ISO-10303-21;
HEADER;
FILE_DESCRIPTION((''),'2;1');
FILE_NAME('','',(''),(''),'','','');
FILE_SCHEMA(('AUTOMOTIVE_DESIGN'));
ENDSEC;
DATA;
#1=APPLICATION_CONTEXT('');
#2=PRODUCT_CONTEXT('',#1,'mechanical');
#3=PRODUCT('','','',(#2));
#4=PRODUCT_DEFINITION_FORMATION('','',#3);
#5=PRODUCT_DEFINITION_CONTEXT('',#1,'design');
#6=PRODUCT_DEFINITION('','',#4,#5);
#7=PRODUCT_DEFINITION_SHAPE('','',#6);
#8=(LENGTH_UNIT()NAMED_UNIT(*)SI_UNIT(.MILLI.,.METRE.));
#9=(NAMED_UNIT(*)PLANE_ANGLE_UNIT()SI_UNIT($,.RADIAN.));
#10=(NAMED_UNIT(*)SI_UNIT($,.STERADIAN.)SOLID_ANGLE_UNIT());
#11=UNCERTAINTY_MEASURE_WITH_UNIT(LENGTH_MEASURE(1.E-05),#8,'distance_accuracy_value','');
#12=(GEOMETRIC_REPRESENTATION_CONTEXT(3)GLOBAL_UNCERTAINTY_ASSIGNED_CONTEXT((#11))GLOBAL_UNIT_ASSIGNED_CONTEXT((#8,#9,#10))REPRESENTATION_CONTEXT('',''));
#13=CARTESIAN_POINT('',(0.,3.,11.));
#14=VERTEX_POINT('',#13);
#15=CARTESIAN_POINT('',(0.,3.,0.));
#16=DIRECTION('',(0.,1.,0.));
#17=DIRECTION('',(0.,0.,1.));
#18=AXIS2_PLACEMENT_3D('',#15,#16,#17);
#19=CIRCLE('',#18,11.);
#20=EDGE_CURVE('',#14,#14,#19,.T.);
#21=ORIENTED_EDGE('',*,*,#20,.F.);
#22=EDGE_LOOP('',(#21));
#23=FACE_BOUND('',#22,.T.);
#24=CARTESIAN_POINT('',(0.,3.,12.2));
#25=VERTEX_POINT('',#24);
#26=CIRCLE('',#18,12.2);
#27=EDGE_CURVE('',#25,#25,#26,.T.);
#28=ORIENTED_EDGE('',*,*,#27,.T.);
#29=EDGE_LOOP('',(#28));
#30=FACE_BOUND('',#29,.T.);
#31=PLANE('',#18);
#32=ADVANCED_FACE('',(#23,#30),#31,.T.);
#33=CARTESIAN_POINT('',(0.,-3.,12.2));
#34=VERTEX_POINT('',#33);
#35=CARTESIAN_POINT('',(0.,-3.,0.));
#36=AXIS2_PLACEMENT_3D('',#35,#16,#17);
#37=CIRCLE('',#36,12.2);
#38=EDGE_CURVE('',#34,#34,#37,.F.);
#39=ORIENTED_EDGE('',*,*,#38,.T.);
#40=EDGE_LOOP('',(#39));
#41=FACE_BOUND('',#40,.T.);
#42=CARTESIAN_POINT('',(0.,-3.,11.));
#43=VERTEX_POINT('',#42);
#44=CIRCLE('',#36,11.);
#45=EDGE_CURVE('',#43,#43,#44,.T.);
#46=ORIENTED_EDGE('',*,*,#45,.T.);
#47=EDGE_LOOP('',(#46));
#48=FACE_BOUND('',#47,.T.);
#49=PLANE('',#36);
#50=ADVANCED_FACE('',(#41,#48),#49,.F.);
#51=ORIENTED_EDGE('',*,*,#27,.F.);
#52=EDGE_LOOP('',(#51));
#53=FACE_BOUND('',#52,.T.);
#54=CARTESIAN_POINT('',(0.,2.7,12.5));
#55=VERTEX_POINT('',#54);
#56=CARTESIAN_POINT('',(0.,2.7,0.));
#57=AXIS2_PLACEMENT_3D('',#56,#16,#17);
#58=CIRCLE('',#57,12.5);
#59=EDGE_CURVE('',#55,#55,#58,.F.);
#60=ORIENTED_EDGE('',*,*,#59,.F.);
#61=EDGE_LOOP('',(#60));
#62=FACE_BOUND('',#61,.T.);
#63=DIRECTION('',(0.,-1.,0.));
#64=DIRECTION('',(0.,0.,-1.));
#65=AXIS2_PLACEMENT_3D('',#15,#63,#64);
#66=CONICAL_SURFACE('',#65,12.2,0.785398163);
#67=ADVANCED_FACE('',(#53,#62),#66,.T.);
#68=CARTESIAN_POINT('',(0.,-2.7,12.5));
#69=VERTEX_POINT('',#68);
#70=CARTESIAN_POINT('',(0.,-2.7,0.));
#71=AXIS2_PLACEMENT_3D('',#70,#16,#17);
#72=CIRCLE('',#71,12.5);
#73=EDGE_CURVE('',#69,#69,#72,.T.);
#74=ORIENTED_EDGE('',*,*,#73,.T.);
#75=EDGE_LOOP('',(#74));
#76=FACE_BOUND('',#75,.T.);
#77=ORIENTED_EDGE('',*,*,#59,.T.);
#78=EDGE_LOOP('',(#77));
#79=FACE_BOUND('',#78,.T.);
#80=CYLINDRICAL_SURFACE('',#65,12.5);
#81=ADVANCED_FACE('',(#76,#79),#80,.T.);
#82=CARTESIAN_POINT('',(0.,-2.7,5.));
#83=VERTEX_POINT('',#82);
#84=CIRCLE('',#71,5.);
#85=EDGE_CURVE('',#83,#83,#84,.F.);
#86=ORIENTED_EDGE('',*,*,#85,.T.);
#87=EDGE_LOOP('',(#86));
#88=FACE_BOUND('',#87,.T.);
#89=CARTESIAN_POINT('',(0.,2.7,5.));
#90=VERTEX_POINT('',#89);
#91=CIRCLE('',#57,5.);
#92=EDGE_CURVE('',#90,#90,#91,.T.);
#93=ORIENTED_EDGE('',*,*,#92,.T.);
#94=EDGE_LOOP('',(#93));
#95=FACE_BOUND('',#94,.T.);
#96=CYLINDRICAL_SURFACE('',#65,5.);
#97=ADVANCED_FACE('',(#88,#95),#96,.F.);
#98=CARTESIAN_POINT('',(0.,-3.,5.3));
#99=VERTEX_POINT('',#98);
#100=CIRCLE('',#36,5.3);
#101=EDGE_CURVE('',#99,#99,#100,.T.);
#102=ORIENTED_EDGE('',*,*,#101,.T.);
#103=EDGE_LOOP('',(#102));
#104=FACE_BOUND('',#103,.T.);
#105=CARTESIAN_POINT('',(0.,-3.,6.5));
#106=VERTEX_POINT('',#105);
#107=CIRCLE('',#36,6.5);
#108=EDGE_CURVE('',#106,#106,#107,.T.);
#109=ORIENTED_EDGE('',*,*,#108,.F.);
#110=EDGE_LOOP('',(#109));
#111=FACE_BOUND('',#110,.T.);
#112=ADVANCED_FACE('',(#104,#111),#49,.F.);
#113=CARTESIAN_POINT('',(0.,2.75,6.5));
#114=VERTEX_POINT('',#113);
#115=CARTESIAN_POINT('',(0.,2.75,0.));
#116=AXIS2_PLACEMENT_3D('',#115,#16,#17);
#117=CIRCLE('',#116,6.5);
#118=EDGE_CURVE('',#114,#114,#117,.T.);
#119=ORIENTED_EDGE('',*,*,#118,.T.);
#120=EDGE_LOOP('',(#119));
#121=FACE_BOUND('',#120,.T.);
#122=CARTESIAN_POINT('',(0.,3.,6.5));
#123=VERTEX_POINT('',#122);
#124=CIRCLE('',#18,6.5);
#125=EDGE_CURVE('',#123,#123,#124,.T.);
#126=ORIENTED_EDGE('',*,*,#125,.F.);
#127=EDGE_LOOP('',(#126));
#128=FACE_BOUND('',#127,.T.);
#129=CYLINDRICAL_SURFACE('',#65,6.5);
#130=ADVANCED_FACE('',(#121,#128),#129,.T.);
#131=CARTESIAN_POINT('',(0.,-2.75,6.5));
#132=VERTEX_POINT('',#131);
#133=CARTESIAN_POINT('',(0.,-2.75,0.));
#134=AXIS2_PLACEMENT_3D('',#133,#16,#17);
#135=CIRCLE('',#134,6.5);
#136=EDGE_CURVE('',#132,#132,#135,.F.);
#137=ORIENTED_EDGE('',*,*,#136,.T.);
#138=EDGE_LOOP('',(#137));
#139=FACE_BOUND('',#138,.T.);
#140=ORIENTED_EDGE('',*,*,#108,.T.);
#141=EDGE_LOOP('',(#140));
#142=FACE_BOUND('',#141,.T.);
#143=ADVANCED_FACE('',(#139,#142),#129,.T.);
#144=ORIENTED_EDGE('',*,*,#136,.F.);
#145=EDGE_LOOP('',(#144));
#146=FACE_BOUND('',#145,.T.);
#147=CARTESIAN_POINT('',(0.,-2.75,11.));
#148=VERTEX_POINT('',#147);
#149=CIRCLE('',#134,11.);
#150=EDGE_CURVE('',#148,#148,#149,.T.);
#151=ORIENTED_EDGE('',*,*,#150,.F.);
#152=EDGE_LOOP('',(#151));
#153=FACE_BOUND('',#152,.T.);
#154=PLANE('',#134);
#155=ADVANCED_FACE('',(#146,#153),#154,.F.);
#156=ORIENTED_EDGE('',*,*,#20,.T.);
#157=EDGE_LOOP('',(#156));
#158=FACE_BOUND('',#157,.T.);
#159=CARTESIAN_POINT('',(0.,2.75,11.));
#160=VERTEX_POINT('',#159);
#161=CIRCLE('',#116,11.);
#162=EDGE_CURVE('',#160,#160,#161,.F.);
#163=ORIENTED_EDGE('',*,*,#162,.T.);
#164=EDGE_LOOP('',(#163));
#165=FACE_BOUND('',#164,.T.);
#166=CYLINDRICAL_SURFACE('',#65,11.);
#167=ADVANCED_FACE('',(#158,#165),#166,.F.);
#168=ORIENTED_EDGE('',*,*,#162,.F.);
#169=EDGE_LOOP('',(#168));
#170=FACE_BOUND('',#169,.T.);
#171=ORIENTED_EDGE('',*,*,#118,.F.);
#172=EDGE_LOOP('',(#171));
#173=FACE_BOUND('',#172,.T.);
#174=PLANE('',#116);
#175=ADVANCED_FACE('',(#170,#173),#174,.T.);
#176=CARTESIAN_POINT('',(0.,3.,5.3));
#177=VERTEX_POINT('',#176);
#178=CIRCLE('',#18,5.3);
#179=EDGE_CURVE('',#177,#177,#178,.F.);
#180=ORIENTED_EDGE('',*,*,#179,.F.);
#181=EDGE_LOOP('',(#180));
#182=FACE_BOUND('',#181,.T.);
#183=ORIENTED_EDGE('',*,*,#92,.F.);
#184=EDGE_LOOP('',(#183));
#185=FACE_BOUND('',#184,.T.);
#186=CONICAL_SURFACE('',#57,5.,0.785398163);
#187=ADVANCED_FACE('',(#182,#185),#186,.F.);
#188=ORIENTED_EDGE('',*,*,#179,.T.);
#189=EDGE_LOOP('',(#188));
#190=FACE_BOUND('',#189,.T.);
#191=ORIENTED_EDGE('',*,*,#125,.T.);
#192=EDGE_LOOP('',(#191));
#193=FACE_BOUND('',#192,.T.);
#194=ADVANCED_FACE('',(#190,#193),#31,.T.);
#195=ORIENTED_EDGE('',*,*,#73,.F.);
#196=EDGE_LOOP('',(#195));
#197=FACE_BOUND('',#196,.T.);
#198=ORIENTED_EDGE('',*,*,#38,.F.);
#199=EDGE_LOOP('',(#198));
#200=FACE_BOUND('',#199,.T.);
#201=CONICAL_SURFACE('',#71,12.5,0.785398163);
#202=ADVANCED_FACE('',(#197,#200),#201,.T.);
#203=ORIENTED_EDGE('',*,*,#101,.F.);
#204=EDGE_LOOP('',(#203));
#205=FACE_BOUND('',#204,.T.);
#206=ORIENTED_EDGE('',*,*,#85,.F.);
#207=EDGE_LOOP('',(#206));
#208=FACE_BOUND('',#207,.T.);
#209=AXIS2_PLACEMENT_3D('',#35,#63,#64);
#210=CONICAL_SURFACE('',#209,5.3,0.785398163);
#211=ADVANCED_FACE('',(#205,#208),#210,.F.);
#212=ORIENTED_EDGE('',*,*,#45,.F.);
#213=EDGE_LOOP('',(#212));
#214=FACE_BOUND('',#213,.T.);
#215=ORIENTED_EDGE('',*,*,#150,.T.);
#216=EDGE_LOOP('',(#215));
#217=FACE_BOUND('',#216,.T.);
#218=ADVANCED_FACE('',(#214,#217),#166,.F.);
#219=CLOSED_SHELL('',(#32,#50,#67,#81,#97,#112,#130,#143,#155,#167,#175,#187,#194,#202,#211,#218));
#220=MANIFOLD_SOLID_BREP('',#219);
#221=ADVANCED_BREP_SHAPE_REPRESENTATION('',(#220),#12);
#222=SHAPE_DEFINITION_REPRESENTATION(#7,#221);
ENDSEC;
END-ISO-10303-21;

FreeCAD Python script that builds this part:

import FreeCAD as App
import Part
import Sketcher


def edges_at(feature, points):
    """Names of the edges that pass closest to the given points."""
    edges = feature.Shape.Edges
    near = lambda p: min(range(len(edges)), key=lambda i: edges[i].distToShape(Part.Vertex(*p))[0])
    return sorted({f"Edge{near(p) + 1}" for p in points})

doc = App.newDocument("Part")
body = doc.addObject("PartDesign::Body", "Body")

# Sketch on XZ plane
sketch1 = doc.addObject("Sketcher::SketchObject", "Sketch")
body.addObject(sketch1)
sketch1.AttachmentSupport = (doc.XZ_Plane, [""])
sketch1.MapMode = "FlatFace"
sketch1.addGeometry(Part.Circle(App.Vector(0, 0, 0), App.Vector(0, 0, 1), 11), False)
sketch1.addGeometry(Part.Circle(App.Vector(0, 0, 0), App.Vector(0, 0, 1), 6.5), False)
sketch1.addConstraint(Sketcher.Constraint("Coincident", 0, 3, -1, 1))
sketch1.addConstraint(Sketcher.Constraint("Coincident", 1, 3, -1, 1))
sketch1.addConstraint(Sketcher.Constraint("Diameter", 0, 22.0))
sketch1.addConstraint(Sketcher.Constraint("Diameter", 1, 13.0))
pad1 = doc.addObject("PartDesign::Pad", "Pad")
body.addObject(pad1)
pad1.Profile = sketch1
pad1.Length = 5.5
pad1.Midplane = True

# Sketch on XZ plane
sketch2 = doc.addObject("Sketcher::SketchObject", "Sketch001")
body.addObject(sketch2)
sketch2.AttachmentSupport = (doc.XZ_Plane, [""])
sketch2.MapMode = "FlatFace"
sketch2.addGeometry(Part.Circle(App.Vector(0, 0, 0), App.Vector(0, 0, 1), 12.5), False)
sketch2.addGeometry(Part.Circle(App.Vector(0, 0, 0), App.Vector(0, 0, 1), 11), False)
sketch2.addGeometry(Part.Circle(App.Vector(0, 0, 0), App.Vector(0, 0, 1), 6.5), False)
sketch2.addGeometry(Part.Circle(App.Vector(0, 0, 0), App.Vector(0, 0, 1), 5), False)
sketch2.addConstraint(Sketcher.Constraint("Coincident", 0, 3, -1, 1))
sketch2.addConstraint(Sketcher.Constraint("Coincident", 1, 3, -1, 1))
sketch2.addConstraint(Sketcher.Constraint("Coincident", 2, 3, -1, 1))
sketch2.addConstraint(Sketcher.Constraint("Coincident", 3, 3, -1, 1))
sketch2.addConstraint(Sketcher.Constraint("Diameter", 0, 25.0))
sketch2.addConstraint(Sketcher.Constraint("Diameter", 1, 22.0))
sketch2.addConstraint(Sketcher.Constraint("Diameter", 2, 13.0))
sketch2.addConstraint(Sketcher.Constraint("Diameter", 3, 10.0))
pad2 = doc.addObject("PartDesign::Pad", "Pad001")
body.addObject(pad2)
pad2.Profile = sketch2
pad2.Length = 6
pad2.Midplane = True
doc.recompute()

chamfer = doc.addObject("PartDesign::Chamfer", "Chamfer")
body.addObject(chamfer)
chamfer.Base = (pad2, edges_at(pad2, [
    (0, 3, -12.5),
    (0, 3, -5),
    (0, -3, -5),
    (0, -3, -12.5),
]))
chamfer.Size = 0.3

doc.recompute()
